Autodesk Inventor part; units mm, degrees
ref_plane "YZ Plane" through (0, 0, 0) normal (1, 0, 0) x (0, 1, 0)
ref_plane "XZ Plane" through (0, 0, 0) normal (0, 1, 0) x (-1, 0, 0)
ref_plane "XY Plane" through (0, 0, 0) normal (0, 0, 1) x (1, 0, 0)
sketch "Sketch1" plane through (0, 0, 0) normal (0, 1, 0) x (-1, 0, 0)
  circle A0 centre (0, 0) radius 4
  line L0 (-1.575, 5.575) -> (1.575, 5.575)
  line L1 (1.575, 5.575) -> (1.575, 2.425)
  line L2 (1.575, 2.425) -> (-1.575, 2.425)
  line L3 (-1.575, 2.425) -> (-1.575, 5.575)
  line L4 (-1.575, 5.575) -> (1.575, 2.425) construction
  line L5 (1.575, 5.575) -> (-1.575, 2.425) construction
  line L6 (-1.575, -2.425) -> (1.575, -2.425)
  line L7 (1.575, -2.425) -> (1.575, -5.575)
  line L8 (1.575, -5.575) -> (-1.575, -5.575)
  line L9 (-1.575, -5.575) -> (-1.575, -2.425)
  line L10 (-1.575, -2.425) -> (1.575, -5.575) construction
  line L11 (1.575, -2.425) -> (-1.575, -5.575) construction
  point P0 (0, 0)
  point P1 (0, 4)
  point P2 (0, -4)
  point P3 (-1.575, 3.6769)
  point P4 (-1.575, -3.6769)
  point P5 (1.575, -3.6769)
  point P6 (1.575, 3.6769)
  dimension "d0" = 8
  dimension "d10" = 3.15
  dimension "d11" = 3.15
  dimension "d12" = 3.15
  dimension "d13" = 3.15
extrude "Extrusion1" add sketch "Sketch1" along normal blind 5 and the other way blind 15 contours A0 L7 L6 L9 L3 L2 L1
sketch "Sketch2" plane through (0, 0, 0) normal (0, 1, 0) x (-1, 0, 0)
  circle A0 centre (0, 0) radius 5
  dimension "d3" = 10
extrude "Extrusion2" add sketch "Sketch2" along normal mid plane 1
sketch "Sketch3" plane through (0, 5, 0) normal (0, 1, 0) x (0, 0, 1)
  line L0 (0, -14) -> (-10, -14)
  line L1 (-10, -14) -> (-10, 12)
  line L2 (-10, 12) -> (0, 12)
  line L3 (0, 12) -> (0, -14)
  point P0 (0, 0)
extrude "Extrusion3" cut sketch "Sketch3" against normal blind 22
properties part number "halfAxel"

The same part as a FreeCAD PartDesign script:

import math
import FreeCAD as App
import Part
import Sketcher
from FreeCAD import Vector
Q = App.Units.Quantity


def add_polygon(sketch, points):
    """Adds a closed chain of lines whose ends are joined by coincident constraints."""
    first, n = sketch.GeometryCount, len(points)
    for a, b in zip(points, points[1:] + points[:1]):
        sketch.addGeometry(Part.LineSegment(App.Vector(*a, 0), App.Vector(*b, 0)), False)
    for i in range(n):
        sketch.addConstraint(Sketcher.Constraint("Coincident", first + i, 2, first + (i + 1) % n, 1))

doc = App.newDocument("Part")
body = doc.addObject("PartDesign::Body", "Body")

# Sketch on XZ plane
sketch1 = body.newObject("Sketcher::SketchObject", "Sketch")
sketch1.AttachmentSupport = (doc.getObject("XZ_Plane"), [""])
sketch1.MapMode = "FlatFace"
sketch1.addGeometry(Part.ArcOfCircle(Part.Circle(Vector(0, 0, 0), Vector(0, 0, 1), 4), math.radians(113.188038), math.radians(246.811962)), False)
sketch1.addGeometry(Part.LineSegment(Vector(-1.575, 3.67687, 0), Vector(-1.575, 2.425, 0)), False)
sketch1.addGeometry(Part.LineSegment(Vector(-1.575, 2.425, 0), Vector(1.575, 2.425, 0)), False)
sketch1.addGeometry(Part.LineSegment(Vector(1.575, 2.425, 0), Vector(1.575, 3.67687, 0)), False)
sketch1.addGeometry(Part.ArcOfCircle(Part.Circle(Vector(0, 0, 0), Vector(0, 0, 1), 4), math.radians(-66.811962), math.radians(66.811962)), False)
sketch1.addGeometry(Part.LineSegment(Vector(1.575, -3.67687, 0), Vector(1.575, -2.425, 0)), False)
sketch1.addGeometry(Part.LineSegment(Vector(1.575, -2.425, 0), Vector(-1.575, -2.425, 0)), False)
sketch1.addGeometry(Part.LineSegment(Vector(-1.575, -2.425, 0), Vector(-1.575, -3.67687, 0)), False)
sketch1.addConstraint(Sketcher.Constraint("Coincident", 0, 1, 1, 1))
sketch1.addConstraint(Sketcher.Constraint("Coincident", 1, 2, 2, 1))
sketch1.addConstraint(Sketcher.Constraint("Coincident", 2, 2, 3, 1))
sketch1.addConstraint(Sketcher.Constraint("Coincident", 3, 2, 4, 2))
sketch1.addConstraint(Sketcher.Constraint("Coincident", 4, 1, 5, 1))
sketch1.addConstraint(Sketcher.Constraint("Coincident", 5, 2, 6, 1))
sketch1.addConstraint(Sketcher.Constraint("Coincident", 6, 2, 7, 1))
sketch1.addConstraint(Sketcher.Constraint("Coincident", 7, 2, 0, 2))
sketch1.addConstraint(Sketcher.Constraint("Vertical", 1))
sketch1.addConstraint(Sketcher.Constraint("Horizontal", 2))
sketch1.addConstraint(Sketcher.Constraint("Vertical", 3))
sketch1.addConstraint(Sketcher.Constraint("Vertical", 5))
sketch1.addConstraint(Sketcher.Constraint("Horizontal", 6))
sketch1.addConstraint(Sketcher.Constraint("Vertical", 7))
sketch1.addConstraint(Sketcher.Constraint("Coincident", 0, 3, -1, 1))
sketch1.addConstraint(Sketcher.Constraint("Coincident", 4, 3, -1, 1))
sketch1.addConstraint(Sketcher.Constraint("Equal", 0, 4))
sketch1.addConstraint(Sketcher.Constraint("Symmetric", 1, 2, 5, 2, -1, 1))
sketch1.addConstraint(Sketcher.Constraint("Horizontal", 0, 1, 3, 2))
sketch1.addConstraint(Sketcher.Constraint("Horizontal", 4, 1, 7, 2))
sketch1.addConstraint(Sketcher.Constraint("Radius", 0, Q("4 mm")))
sketch1.addConstraint(Sketcher.Constraint("DistanceX", 2, 1, 2, 2, Q("3.15 mm")))
sketch1.addConstraint(Sketcher.Constraint("DistanceY", 5, 2, 2, 2, Q("4.85 mm")))
pad1 = body.newObject("PartDesign::Pad", "Pad")
pad1.Profile = sketch1
pad1.Type = "TwoLengths"
pad1.Length = 5
pad1.Length2 = 15
pad1.Reversed = True

# Sketch on XZ plane
sketch2 = body.newObject("Sketcher::SketchObject", "Sketch001")
sketch2.AttachmentSupport = (doc.getObject("XZ_Plane"), [""])
sketch2.MapMode = "FlatFace"
sketch2.addGeometry(Part.Circle(Vector(0, 0, 0), Vector(0, 0, 1), 5), False)
sketch2.addConstraint(Sketcher.Constraint("Coincident", 0, 3, -1, 1))
sketch2.addConstraint(Sketcher.Constraint("Diameter", 0, Q("10 mm")))
pad2 = body.newObject("PartDesign::Pad", "Pad001")
pad2.Profile = sketch2
pad2.Length = 1
pad2.Midplane = True

# Sketch on XZ plane
sketch3 = body.newObject("Sketcher::SketchObject", "Sketch002")
sketch3.AttachmentSupport = (doc.getObject("XZ_Plane"), [""])
sketch3.MapMode = "FlatFace"
sketch3.AttachmentOffset = App.Placement(Vector(0, 0, -5), App.Rotation())
add_polygon(sketch3, [(-14, -10), (-14, 0), (12, 0), (12, -10)])  # lines 0-3
sketch3.addConstraint(Sketcher.Constraint("Vertical", 0))
sketch3.addConstraint(Sketcher.Constraint("Horizontal", 1))
sketch3.addConstraint(Sketcher.Constraint("Vertical", 2))
sketch3.addConstraint(Sketcher.Constraint("Horizontal", 3))
sketch3.addConstraint(Sketcher.Constraint("PointOnObject", 0, 2, -1))
sketch3.addConstraint(Sketcher.Constraint("DistanceX", 1, 1, 1, 2, Q("26 mm")))
sketch3.addConstraint(Sketcher.Constraint("DistanceY", 0, 1, 0, 2, Q("10 mm")))
sketch3.addConstraint(Sketcher.Constraint("DistanceX", 0, 2, -1, 1, Q("14 mm")))
pocket1 = body.newObject("PartDesign::Pocket", "Pocket")
pocket1.Profile = sketch3
pocket1.Length = 22
pocket1.Reversed = True

doc.recompute()
